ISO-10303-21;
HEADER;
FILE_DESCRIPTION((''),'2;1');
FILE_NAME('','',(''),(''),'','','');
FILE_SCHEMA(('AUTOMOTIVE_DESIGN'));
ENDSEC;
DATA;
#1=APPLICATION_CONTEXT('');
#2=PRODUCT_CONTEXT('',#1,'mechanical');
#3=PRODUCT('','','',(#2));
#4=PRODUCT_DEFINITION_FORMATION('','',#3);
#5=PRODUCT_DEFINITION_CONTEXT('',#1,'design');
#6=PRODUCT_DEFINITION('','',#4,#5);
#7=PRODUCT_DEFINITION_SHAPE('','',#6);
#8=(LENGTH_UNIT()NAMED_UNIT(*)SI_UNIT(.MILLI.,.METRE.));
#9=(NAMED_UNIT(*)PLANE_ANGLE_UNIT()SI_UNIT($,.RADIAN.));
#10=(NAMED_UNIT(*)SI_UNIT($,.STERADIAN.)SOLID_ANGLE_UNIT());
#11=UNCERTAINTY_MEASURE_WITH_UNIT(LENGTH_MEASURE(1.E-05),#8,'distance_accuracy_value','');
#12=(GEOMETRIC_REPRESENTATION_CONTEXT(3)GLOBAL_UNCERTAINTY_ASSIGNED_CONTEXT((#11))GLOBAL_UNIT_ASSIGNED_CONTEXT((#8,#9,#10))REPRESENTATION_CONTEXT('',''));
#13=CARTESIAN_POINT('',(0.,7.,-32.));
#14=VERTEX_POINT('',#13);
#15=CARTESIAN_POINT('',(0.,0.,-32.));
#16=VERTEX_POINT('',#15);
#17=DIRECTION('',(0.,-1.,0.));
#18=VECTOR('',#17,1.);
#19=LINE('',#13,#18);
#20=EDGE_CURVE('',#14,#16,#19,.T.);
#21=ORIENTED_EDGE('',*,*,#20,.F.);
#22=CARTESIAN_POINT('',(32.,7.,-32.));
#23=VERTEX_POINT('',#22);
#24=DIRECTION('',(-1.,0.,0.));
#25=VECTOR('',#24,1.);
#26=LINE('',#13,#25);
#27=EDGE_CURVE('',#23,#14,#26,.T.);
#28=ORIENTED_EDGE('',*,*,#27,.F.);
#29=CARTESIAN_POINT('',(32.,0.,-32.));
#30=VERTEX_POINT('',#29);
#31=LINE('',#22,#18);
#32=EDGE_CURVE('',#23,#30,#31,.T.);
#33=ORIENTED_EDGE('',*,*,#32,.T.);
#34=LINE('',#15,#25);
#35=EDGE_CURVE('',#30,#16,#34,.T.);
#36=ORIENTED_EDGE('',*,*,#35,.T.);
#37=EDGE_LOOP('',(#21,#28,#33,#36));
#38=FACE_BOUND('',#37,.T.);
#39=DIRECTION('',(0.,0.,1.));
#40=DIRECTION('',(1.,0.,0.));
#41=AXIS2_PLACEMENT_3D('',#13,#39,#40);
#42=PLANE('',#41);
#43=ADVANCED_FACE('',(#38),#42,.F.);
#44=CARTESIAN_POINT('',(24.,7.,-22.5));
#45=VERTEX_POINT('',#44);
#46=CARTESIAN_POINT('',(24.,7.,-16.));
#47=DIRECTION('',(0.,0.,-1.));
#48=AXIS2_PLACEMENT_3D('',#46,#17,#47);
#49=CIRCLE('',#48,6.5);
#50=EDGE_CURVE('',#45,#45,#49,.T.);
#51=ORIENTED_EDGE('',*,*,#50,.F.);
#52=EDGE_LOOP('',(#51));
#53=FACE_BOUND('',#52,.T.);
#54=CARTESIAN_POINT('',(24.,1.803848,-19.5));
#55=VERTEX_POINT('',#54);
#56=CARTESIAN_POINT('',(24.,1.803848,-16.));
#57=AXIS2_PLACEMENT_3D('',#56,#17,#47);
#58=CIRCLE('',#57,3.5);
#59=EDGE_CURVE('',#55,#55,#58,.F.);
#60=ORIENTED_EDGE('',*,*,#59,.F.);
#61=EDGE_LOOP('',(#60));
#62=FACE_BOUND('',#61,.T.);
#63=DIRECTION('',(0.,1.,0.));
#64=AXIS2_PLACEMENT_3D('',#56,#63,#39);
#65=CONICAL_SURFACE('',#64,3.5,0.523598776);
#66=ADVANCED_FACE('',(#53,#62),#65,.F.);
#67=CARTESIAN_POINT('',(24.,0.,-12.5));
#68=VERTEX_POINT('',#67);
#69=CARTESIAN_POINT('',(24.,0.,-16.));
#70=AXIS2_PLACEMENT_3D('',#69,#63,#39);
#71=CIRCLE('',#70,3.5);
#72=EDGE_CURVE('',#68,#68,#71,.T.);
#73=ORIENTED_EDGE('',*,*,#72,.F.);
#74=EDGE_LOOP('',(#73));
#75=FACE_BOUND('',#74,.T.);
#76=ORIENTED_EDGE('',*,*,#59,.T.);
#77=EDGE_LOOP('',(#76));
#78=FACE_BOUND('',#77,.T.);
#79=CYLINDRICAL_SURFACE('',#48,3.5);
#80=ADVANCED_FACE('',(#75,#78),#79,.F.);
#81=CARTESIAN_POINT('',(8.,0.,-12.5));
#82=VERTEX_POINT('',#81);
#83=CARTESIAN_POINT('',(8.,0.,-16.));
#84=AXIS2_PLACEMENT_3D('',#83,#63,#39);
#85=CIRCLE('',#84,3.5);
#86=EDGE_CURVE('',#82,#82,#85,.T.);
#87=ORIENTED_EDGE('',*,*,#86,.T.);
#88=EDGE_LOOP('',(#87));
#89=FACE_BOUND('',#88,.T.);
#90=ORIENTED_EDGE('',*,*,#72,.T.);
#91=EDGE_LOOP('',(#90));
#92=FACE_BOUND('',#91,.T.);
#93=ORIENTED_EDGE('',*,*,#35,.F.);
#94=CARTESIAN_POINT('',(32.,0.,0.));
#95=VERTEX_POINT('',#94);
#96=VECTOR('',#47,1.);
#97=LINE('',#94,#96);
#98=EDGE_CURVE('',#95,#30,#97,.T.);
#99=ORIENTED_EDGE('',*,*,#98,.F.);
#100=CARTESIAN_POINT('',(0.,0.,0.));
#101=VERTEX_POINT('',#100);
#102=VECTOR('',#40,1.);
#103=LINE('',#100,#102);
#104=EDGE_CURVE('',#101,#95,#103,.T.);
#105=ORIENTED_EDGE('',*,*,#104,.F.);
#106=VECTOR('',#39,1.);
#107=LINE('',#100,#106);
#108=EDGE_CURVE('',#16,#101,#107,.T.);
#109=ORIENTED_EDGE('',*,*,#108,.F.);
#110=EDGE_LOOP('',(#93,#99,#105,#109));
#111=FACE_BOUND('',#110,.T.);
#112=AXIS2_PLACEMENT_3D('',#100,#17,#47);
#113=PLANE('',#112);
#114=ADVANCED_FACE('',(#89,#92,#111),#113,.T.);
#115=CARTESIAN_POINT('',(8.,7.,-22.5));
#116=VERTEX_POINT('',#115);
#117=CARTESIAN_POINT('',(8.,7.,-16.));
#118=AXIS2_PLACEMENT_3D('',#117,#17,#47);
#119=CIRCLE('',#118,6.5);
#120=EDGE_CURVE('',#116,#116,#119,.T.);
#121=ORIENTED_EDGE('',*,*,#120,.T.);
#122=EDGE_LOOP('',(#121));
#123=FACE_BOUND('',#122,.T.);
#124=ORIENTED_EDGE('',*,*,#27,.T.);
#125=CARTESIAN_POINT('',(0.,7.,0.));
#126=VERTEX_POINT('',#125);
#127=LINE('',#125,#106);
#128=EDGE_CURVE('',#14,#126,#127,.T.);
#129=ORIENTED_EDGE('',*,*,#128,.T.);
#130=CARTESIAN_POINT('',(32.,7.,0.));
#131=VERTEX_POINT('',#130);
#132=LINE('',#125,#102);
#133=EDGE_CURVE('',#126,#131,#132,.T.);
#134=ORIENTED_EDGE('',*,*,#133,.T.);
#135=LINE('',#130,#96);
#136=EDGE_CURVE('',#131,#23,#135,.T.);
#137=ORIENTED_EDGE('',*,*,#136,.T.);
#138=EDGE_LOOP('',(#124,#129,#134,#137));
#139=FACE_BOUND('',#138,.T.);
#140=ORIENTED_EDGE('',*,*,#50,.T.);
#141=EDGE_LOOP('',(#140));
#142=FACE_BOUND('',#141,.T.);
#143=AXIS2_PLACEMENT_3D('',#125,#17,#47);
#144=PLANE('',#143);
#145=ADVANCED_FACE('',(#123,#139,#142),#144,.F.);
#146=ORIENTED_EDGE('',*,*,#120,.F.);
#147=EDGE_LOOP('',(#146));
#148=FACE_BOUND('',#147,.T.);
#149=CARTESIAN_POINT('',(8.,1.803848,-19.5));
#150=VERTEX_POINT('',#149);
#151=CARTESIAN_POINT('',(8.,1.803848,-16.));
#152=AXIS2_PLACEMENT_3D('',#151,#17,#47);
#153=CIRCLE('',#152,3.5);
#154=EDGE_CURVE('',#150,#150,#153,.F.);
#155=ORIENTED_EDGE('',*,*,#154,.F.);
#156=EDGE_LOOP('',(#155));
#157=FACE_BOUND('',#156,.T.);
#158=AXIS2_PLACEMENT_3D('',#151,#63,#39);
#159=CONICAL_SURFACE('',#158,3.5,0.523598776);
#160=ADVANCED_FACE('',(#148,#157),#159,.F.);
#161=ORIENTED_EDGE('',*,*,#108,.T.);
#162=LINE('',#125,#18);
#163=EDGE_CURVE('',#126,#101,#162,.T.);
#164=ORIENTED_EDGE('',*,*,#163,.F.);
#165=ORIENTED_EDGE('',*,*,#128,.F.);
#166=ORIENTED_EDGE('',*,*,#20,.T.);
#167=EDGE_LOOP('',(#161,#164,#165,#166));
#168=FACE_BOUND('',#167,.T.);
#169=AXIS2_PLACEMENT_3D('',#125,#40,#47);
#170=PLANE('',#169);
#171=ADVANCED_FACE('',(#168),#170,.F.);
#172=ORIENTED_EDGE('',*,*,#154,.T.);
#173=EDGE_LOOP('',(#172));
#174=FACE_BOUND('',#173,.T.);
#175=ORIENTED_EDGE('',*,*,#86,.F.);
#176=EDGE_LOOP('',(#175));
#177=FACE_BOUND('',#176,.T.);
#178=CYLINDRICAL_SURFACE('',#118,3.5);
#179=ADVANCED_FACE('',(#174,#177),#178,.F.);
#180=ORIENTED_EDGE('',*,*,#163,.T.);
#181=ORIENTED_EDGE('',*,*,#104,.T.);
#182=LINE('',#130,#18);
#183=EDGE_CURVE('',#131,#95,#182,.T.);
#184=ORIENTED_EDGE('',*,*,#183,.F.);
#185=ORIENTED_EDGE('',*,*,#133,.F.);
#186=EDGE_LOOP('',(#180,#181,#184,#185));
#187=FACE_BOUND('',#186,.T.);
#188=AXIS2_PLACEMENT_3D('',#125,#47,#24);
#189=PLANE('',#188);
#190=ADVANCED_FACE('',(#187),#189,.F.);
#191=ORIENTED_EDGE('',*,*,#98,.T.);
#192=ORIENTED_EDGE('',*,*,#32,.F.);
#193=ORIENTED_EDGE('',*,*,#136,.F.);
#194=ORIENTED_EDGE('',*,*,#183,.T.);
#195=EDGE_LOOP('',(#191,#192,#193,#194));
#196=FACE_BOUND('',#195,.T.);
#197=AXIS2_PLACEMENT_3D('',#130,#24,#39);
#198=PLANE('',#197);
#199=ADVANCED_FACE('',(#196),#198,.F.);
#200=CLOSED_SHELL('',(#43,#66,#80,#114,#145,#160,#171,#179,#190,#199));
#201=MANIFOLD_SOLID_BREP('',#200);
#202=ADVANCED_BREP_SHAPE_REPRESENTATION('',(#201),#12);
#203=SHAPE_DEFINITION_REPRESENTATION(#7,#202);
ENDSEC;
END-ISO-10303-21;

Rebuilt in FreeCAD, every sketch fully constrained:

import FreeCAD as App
import Part
import Sketcher

V = App.Vector


def edges_at(feature, points):
    """Names of the edges that pass closest to the given points."""
    edges = feature.Shape.Edges
    near = lambda p: min(range(len(edges)), key=lambda i: edges[i].distToShape(Part.Vertex(*p))[0])
    return sorted({f"Edge{near(p) + 1}" for p in points})

doc = App.newDocument("Part")
body = doc.addObject("PartDesign::Body", "Body")

# Sketch on XZ plane
sketch1 = body.newObject("Sketcher::SketchObject", "Sketch")
sketch1.AttachmentSupport = (doc.getObject("XZ_Plane"), [""])
sketch1.MapMode = "FlatFace"
sketch1.addGeometry([
    Part.LineSegment(V(0, -32, 0), V(0, 0, 0)),  # 0
    Part.LineSegment(V(0, 0, 0), V(32, 0, 0)),  # 1
    Part.LineSegment(V(32, 0, 0), V(32, -32, 0)),  # 2
    Part.LineSegment(V(32, -32, 0), V(0, -32, 0)),  # 3
    Part.Circle(V(8, -16, 0), V(0, 0, 1), 3.5),  # 4
    Part.Circle(V(24, -16, 0), V(0, 0, 1), 3.5),  # 5
], False)
sketch1.addConstraint([
    Sketcher.Constraint("Coincident", 0, 2, 1, 1),
    Sketcher.Constraint("Coincident", 1, 2, 2, 1),
    Sketcher.Constraint("Coincident", 2, 2, 3, 1),
    Sketcher.Constraint("Coincident", 3, 2, 0, 1),
    Sketcher.Constraint("Vertical", 0),
    Sketcher.Constraint("Horizontal", 1),
    Sketcher.Constraint("Vertical", 2),
    Sketcher.Constraint("Horizontal", 3),
    Sketcher.Constraint("Coincident", 0, 2, -1, 1),
    Sketcher.Constraint("Equal", 4, 5),
    Sketcher.Constraint("Horizontal", 4, 3, 5, 3),
    Sketcher.Constraint("Equal", 3, 0),
    Sketcher.Constraint("Diameter", 4, 7.0),
    Sketcher.Constraint("DistanceX", 1, 1, 1, 2, 32.0),
    Sketcher.Constraint("DistanceX", -1, 1, 4, 3, 8.0),
    Sketcher.Constraint("DistanceY", 4, 3, -1, 1, 16.0),
    Sketcher.Constraint("DistanceX", -1, 1, 5, 3, 24.0),
])
pad1 = body.newObject("PartDesign::Pad", "Pad")
pad1.Profile = sketch1
pad1.Length = 7
pad1.Reversed = True
doc.recompute()

chamfer = body.newObject("PartDesign::Chamfer", "Chamfer")
chamfer.Base = (pad1, edges_at(pad1, [(20.5, 7, -16)]))
chamfer.ChamferType = "Two distances"
chamfer.Size = 3
chamfer.Size2 = 5.196152
chamfer.FlipDirection = True
doc.recompute()

chamfer2 = body.newObject("PartDesign::Chamfer", "Chamfer001")
chamfer2.Base = (chamfer, edges_at(chamfer, [(4.5, 7, -16)]))
chamfer2.ChamferType = "Two distances"
chamfer2.Size = 3
chamfer2.Size2 = 5.196152

doc.recompute()
